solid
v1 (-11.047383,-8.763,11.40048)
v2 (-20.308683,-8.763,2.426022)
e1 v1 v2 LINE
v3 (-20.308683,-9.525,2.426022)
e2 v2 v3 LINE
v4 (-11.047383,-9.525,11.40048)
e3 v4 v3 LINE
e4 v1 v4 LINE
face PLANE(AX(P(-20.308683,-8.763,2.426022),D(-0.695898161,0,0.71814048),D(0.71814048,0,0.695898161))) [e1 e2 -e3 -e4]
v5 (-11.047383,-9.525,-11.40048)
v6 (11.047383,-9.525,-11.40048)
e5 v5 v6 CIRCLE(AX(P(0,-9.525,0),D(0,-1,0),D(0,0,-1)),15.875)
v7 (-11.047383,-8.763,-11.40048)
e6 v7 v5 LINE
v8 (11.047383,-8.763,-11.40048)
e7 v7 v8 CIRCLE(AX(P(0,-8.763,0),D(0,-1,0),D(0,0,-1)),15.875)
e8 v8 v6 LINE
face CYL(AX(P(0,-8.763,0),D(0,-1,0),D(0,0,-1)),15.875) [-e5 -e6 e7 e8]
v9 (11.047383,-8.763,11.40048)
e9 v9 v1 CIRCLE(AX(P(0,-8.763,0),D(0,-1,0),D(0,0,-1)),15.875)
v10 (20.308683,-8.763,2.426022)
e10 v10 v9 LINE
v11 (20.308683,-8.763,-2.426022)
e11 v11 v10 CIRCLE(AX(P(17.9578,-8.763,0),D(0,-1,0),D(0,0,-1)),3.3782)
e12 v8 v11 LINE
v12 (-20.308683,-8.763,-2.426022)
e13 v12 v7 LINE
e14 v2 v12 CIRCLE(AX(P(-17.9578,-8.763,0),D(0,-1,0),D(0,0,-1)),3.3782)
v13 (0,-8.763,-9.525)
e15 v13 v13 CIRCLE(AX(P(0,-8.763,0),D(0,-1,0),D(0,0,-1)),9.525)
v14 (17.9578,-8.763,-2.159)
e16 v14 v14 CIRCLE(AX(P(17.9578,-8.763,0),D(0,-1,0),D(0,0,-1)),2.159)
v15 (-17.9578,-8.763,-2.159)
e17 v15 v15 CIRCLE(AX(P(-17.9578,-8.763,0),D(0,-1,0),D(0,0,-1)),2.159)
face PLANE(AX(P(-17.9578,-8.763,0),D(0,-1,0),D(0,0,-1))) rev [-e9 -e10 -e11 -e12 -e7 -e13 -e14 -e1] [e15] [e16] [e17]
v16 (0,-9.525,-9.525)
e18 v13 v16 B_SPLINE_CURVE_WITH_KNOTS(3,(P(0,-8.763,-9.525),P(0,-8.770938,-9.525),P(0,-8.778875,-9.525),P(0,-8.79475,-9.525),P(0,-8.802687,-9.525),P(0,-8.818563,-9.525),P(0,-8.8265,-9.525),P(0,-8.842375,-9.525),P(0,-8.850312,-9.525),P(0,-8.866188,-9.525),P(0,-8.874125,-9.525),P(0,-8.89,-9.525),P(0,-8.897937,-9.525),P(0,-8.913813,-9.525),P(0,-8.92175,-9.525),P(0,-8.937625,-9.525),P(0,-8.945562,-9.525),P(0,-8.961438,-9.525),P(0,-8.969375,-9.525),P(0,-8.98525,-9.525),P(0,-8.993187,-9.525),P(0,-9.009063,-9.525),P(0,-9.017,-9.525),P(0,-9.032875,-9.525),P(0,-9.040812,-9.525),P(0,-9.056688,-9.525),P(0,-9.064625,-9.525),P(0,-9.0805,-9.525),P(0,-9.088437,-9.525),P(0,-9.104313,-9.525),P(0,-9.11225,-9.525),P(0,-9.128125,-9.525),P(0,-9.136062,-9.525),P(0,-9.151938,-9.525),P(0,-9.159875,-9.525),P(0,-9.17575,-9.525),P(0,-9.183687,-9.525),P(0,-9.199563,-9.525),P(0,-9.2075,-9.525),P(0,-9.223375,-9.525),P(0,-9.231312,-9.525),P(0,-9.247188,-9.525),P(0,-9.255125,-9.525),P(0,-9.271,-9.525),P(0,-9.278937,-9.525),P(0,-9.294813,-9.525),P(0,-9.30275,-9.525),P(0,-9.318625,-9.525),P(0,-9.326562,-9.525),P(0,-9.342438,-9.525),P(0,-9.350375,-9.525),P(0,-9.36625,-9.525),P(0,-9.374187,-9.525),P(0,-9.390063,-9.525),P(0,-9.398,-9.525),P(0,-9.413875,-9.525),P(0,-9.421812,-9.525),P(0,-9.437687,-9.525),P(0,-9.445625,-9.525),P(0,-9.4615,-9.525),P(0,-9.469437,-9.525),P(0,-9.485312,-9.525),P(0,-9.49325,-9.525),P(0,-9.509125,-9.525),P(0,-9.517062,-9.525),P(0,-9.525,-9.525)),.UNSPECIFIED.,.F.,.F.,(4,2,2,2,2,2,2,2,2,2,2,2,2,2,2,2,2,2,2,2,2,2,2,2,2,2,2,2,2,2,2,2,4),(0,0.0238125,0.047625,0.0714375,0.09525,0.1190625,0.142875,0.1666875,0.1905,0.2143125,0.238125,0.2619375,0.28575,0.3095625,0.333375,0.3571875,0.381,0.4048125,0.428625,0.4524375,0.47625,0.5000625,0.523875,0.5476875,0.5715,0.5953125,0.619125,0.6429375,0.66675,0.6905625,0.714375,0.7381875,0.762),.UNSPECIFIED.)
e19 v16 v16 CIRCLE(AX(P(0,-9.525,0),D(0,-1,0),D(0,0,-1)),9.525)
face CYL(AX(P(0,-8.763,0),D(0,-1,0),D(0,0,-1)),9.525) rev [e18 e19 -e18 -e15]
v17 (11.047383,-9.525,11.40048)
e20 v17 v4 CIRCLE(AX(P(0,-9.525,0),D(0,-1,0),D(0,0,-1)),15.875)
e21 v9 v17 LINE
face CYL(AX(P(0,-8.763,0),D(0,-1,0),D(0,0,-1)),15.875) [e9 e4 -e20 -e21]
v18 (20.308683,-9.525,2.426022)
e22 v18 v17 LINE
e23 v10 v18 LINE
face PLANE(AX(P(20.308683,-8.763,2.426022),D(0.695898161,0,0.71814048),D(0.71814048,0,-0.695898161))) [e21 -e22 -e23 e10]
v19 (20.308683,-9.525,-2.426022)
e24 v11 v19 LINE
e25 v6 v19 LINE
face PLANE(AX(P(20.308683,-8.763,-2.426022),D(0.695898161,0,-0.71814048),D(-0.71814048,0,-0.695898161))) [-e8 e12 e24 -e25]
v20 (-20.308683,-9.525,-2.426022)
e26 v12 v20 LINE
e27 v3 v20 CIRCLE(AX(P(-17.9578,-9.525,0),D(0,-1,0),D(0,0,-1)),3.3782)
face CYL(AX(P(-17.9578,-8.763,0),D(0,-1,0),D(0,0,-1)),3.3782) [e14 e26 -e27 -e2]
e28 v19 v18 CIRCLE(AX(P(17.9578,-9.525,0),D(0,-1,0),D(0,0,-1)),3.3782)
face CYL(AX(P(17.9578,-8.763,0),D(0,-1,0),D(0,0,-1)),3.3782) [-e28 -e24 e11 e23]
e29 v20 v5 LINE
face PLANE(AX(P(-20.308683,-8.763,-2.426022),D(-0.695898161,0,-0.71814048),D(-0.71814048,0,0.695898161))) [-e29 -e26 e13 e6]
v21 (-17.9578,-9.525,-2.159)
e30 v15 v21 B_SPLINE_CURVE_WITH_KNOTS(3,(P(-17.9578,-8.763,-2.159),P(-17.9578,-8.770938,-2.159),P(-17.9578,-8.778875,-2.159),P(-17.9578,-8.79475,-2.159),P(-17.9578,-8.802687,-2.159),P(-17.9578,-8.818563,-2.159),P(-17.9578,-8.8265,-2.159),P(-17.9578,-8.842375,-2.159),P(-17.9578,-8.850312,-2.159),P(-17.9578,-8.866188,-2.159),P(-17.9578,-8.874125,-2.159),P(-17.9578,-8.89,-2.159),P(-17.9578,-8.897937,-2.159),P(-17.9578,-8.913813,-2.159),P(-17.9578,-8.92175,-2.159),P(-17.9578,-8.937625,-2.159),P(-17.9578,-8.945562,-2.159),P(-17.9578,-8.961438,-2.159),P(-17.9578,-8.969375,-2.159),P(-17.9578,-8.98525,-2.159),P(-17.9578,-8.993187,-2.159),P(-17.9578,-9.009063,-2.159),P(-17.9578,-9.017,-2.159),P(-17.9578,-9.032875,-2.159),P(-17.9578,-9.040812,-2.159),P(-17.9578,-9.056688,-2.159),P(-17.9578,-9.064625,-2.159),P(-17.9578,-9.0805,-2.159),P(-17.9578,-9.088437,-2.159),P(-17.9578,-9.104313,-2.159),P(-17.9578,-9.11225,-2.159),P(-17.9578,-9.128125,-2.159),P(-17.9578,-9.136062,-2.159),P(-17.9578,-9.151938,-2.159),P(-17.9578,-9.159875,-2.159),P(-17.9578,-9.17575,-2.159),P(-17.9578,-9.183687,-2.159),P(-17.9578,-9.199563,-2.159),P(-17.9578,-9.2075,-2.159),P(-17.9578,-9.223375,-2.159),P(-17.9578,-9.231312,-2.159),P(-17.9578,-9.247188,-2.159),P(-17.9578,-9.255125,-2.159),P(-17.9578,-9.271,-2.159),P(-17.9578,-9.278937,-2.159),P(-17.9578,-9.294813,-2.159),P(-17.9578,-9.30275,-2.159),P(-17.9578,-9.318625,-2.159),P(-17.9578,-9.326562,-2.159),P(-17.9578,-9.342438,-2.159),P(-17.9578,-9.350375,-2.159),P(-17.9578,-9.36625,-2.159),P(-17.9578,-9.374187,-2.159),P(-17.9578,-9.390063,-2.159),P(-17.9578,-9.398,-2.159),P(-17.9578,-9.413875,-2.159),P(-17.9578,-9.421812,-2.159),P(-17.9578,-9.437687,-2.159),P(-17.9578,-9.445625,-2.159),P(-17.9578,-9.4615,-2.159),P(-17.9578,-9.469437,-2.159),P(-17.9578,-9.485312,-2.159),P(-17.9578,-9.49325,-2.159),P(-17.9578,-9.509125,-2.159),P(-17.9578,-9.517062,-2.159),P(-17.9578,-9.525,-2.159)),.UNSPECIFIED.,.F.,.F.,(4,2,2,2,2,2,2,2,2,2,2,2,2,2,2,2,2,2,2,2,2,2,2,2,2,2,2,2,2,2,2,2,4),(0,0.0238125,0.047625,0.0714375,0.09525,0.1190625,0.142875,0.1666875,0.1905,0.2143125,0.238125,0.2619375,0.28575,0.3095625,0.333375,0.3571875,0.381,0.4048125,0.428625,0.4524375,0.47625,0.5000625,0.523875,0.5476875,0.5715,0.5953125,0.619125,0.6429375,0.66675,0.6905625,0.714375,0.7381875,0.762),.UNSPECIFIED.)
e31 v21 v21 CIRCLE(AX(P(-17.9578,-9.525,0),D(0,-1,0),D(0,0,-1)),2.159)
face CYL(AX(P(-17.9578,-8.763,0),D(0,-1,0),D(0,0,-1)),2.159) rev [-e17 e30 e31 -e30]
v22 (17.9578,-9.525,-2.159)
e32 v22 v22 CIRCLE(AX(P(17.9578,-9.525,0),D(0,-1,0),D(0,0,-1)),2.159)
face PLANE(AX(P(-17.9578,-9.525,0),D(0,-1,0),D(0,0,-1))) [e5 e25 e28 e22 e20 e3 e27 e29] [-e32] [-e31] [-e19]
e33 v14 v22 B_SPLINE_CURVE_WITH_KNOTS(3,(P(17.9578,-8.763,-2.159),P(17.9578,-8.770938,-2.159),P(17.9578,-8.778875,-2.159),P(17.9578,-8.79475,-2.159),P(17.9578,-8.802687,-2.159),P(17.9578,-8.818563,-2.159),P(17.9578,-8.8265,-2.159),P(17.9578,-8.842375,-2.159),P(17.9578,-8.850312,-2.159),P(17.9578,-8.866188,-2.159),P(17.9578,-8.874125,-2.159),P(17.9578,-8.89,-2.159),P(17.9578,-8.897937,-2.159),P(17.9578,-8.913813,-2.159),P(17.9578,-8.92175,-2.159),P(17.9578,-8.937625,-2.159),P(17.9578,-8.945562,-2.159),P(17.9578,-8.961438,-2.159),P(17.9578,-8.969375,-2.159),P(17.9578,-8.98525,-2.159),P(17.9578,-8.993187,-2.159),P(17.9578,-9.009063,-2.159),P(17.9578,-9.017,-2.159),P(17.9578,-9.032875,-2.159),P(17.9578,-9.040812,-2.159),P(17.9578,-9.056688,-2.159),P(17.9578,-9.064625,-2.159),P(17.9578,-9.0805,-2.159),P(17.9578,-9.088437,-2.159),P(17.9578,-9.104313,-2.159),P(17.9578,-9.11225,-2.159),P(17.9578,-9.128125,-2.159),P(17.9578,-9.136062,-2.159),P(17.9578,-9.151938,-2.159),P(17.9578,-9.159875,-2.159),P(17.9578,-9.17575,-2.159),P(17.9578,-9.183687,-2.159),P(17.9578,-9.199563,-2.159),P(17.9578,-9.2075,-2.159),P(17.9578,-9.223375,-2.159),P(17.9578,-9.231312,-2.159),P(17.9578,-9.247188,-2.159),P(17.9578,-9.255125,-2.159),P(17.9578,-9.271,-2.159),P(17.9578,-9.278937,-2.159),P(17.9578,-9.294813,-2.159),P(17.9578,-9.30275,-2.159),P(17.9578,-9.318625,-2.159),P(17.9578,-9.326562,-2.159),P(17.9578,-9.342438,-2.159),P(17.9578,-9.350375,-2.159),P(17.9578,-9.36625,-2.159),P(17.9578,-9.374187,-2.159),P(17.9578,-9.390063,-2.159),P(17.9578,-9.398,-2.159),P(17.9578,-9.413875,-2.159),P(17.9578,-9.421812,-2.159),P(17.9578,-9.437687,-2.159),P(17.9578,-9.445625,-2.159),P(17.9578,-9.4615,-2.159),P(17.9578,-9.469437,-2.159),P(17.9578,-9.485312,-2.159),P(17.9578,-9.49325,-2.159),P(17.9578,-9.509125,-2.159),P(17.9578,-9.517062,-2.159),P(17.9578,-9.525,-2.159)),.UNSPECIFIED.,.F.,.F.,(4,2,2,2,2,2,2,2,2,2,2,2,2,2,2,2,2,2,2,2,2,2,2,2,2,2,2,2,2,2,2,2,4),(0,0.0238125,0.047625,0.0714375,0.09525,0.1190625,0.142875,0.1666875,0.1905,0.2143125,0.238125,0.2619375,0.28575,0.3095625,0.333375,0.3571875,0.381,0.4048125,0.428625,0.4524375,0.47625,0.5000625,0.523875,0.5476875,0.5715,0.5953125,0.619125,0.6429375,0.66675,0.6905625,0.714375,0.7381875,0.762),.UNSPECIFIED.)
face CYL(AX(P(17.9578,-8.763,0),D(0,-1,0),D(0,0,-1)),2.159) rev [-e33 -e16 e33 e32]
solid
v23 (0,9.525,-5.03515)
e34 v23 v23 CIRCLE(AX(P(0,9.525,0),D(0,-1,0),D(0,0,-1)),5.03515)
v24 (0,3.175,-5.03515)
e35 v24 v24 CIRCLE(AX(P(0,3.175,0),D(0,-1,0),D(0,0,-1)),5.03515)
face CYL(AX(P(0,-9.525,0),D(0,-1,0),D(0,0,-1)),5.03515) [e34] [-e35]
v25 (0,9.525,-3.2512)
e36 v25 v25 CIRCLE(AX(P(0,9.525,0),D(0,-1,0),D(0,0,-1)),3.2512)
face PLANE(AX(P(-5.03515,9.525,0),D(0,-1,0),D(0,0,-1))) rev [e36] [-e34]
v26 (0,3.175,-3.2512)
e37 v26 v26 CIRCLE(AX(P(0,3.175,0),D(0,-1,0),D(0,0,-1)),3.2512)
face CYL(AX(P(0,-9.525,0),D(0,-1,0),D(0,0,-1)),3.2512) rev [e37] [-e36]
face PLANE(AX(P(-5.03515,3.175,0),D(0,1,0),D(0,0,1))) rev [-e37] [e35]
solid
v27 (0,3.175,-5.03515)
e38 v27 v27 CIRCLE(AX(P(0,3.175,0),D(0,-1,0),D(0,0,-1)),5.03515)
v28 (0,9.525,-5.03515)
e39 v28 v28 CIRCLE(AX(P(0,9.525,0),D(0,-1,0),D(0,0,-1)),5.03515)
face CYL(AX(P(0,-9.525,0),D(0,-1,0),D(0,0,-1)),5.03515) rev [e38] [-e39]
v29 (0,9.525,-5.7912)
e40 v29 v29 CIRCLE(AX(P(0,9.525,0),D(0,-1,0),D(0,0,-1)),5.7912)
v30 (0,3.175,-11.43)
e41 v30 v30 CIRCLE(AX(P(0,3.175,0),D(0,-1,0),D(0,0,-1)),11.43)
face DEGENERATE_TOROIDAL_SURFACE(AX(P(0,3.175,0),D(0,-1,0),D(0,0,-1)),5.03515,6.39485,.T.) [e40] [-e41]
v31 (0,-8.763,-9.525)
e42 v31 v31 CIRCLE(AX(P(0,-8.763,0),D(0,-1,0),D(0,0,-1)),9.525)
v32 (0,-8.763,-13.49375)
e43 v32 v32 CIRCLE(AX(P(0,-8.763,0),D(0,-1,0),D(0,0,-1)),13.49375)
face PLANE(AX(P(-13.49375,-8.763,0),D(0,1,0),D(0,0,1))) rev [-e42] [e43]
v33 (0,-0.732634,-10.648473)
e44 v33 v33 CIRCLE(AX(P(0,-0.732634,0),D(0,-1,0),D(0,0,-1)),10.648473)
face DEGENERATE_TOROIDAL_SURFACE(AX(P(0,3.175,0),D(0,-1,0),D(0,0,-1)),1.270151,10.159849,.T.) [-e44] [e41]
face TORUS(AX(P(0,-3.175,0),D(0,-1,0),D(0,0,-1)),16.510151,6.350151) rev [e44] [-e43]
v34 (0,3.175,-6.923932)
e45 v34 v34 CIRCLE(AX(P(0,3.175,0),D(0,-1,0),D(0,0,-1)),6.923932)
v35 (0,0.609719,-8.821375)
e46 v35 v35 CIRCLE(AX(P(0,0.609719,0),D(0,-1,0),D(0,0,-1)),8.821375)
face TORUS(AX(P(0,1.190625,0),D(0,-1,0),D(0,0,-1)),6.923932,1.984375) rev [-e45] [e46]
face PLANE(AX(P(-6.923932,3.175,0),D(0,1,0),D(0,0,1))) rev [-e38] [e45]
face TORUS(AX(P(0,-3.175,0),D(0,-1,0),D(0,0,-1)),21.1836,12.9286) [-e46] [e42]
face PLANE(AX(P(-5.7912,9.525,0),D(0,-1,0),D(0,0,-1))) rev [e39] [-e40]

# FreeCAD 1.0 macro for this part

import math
import FreeCAD as App
import Part
import Sketcher

V = App.Vector
Q = App.Units.Quantity

doc = App.newDocument("Part")
body = doc.addObject("PartDesign::Body", "Body")

# Sketch on XY plane
sketch1 = body.newObject("Sketcher::SketchObject", "Sketch")
sketch1.AttachmentSupport = (doc.getObject("XY_Plane"), [""])
sketch1.MapMode = "FlatFace"
sketch1.addGeometry([
    Part.LineSegment(V(-13.5, -8.8, 0), V(-9.5, -8.8, 0)),  # 0
    Part.ArcOfCircle(Part.Circle(V(-21.2, -3.2, 0), V(0, 0, 1), 12.9), math.radians(-26), math.radians(17)),  # 1
    Part.ArcOfCircle(Part.Circle(V(-6.9, 1.2, 0), V(0, 0, 1), 2), math.radians(90), math.radians(197)),  # 2
    Part.LineSegment(V(-6.9, 3.2, 0), V(-5, 3.2, 0)),  # 3
    Part.LineSegment(V(-5, 3.2, 0), V(-5, 9.5, 0)),  # 4
    Part.LineSegment(V(-5, 9.5, 0), V(-5.8, 9.5, 0)),  # 5
    Part.ArcOfCircle(Part.Circle(V(-5, 3.2, 0), V(0, 0, 1), 6.4), math.radians(97), math.radians(180)),  # 6
    Part.ArcOfCircle(Part.Circle(V(-1.3, 3.2, 0), V(0, 0, 1), 10.2), math.radians(180), math.radians(203)),  # 7
    Part.ArcOfCircle(Part.Circle(V(-16.5, -3.2, 0), V(0, 0, 1), 6.4), math.radians(-62), math.radians(23)),  # 8
], False)
sketch1.addConstraint([
    Sketcher.Constraint("Coincident", 0, 2, 1, 1),
    Sketcher.Constraint("Tangent", 1, 2, 2, 2),
    Sketcher.Constraint("Tangent", 2, 1, 3, 1),
    Sketcher.Constraint("Coincident", 3, 2, 4, 1),
    Sketcher.Constraint("Coincident", 4, 2, 5, 1),
    Sketcher.Constraint("Coincident", 5, 2, 6, 1),
    Sketcher.Constraint("Tangent", 6, 2, 7, 1),
    Sketcher.Constraint("Tangent", 7, 2, 8, 2),
    Sketcher.Constraint("Coincident", 8, 1, 0, 1),
    Sketcher.Constraint("Horizontal", 0),
    Sketcher.Constraint("Horizontal", 3),
    Sketcher.Constraint("Vertical", 4),
    Sketcher.Constraint("Horizontal", 5),
    Sketcher.Constraint("Coincident", 3, 2, 6, 3),
    Sketcher.Constraint("Horizontal", 6, 3, 7, 3),
    Sketcher.Constraint("Horizontal", 1, 3, 8, 3),
    Sketcher.Constraint("Radius", 1, Q("0.509 in")),
    Sketcher.Constraint("Radius", 2, Q("0.078125 in")),
    Sketcher.Constraint("DistanceY", 4, 1, 4, 2, Q("0.25 in")),
    Sketcher.Constraint("DistanceX", 8, 3, 7, 3, Q("0.6 in")),
    Sketcher.Constraint("DistanceX", 0, 1, 0, 2, Q("0.15625 in")),
    Sketcher.Constraint("DistanceX", 6, 2, -1, 1, Q("0.45 in")),
    Sketcher.Constraint("DistanceY", 1, 3, 6, 3, Q("0.25 in")),
    Sketcher.Constraint("DistanceY", 0, 2, 8, 3, Q("0.22 in")),
    Sketcher.Constraint("DistanceX", 1, 3, -1, 1, Q("0.834 in")),
    Sketcher.Constraint("DistanceY", 1, 3, -1, 1, Q("0.125 in")),
    Sketcher.Constraint("DistanceX", 5, 2, -1, 1, Q("0.228 in")),
])
revolution = body.newObject("PartDesign::Revolution", "Revolution")
revolution.Profile = sketch1
revolution.ReferenceAxis = (sketch1, ["V_Axis"])
revolution.Angle = 360
body2 = doc.addObject("PartDesign::Body", "Body001")

# Sketch on XY plane
sketch2 = body2.newObject("Sketcher::SketchObject", "Sketch001")
sketch2.AttachmentSupport = (doc.getObject("XY_Plane001"), [""])
sketch2.MapMode = "FlatFace"
sketch2.addGeometry([
    Part.LineSegment(V(-5, 9.5, 0), V(-5, 3.2, 0)),
    Part.LineSegment(V(-5, 3.2, 0), V(-3.3, 3.2, 0)),
    Part.LineSegment(V(-3.3, 3.2, 0), V(-3.3, 9.5, 0)),
    Part.LineSegment(V(-3.3, 9.5, 0), V(-5, 9.5, 0)),
], False)
sketch2.addConstraint([
    Sketcher.Constraint("Coincident", 0, 2, 1, 1),
    Sketcher.Constraint("Coincident", 1, 2, 2, 1),
    Sketcher.Constraint("Coincident", 2, 2, 3, 1),
    Sketcher.Constraint("Coincident", 3, 2, 0, 1),
    Sketcher.Constraint("Vertical", 0),
    Sketcher.Constraint("Horizontal", 1),
    Sketcher.Constraint("Vertical", 2),
    Sketcher.Constraint("Horizontal", 3),
    Sketcher.Constraint("DistanceY", 0, 2, 0, 1, Q("0.25 in")),
    Sketcher.Constraint("DistanceY", -1, 1, 0, 2, Q("0.125 in")),
    Sketcher.Constraint("DistanceX", 1, 2, -1, 1, Q("0.128 in")),
    Sketcher.Constraint("DistanceX", 1, 1, 1, 2, Q("1.78395 mm")),
])
revolution2 = body2.newObject("PartDesign::Revolution", "Revolution001")
revolution2.Profile = sketch2
revolution2.ReferenceAxis = (sketch2, ["V_Axis"])
revolution2.Angle = 360
body3 = doc.addObject("PartDesign::Body", "Body002")

# Sketch on XZ plane
sketch3 = body3.newObject("Sketcher::SketchObject", "Sketch002")
sketch3.AttachmentSupport = (doc.getObject("XZ_Plane002"), [""])
sketch3.MapMode = "FlatFace"
sketch3.AttachmentOffset = App.Placement(V(0, 0, 0.375 * 25.4), App.Rotation())
sketch3.addGeometry([
    Part.LineSegment(V(-20.3, -2.4, 0), V(-11, -11.4, 0)),  # 0
    Part.ArcOfCircle(Part.Circle(V(0, 0, 0), V(0, 0, 1), 15.9), math.radians(-134), math.radians(-46)),  # 1
    Part.LineSegment(V(11, -11.4, 0), V(20.3, -2.4, 0)),  # 2
    Part.ArcOfCircle(Part.Circle(V(18, 0, 0), V(0, 0, 1), 3.4), math.radians(-46), math.radians(46)),  # 3
    Part.LineSegment(V(20.3, 2.4, 0), V(11, 11.4, 0)),  # 4
    Part.ArcOfCircle(Part.Circle(V(0, 0, 0), V(0, 0, 1), 15.9), math.radians(46), math.radians(134)),  # 5
    Part.LineSegment(V(-11, 11.4, 0), V(-20.3, 2.4, 0)),  # 6
    Part.ArcOfCircle(Part.Circle(V(-18, 0, 0), V(0, 0, 1), 3.4), math.radians(134), math.radians(226)),  # 7
    Part.Circle(V(-18, 0, 0), V(0, 0, 1), 2.2),  # 8
    Part.Circle(V(18, 0, 0), V(0, 0, 1), 2.2),  # 9
    Part.Circle(V(0, 0, 0), V(0, 0, 1), 9.5),  # 10
], False)
sketch3.addConstraint([
    Sketcher.Constraint("Tangent", 0, 2, 1, 1),
    Sketcher.Constraint("Tangent", 1, 2, 2, 1),
    Sketcher.Constraint("Tangent", 2, 2, 3, 1),
    Sketcher.Constraint("Tangent", 3, 2, 4, 1),
    Sketcher.Constraint("Tangent", 4, 2, 5, 1),
    Sketcher.Constraint("Tangent", 5, 2, 6, 1),
    Sketcher.Constraint("Tangent", 6, 2, 7, 1),
    Sketcher.Constraint("Tangent", 7, 2, 0, 1),
    Sketcher.Constraint("Coincident", 1, 3, -1, 1),
    Sketcher.Constraint("Coincident", 5, 3, -1, 1),
    Sketcher.Constraint("Coincident", 10, 3, -1, 1),
    Sketcher.Constraint("Coincident", 8, 3, 7, 3),
    Sketcher.Constraint("Coincident", 9, 3, 3, 3),
    Sketcher.Constraint("Equal", 1, 5),
    Sketcher.Constraint("Equal", 3, 7),
    Sketcher.Constraint("Equal", 8, 9),
    Sketcher.Constraint("Symmetric", 3, 3, 7, 3, -1, 1),
    Sketcher.Constraint("PointOnObject", 3, 3, -1),
    Sketcher.Constraint("Diameter", 8, Q("0.17 in")),
    Sketcher.Constraint("Diameter", 10, Q("0.75 in")),
    Sketcher.Constraint("Radius", 1, Q("0.625 in")),
    Sketcher.Constraint("Radius", 3, Q("0.133 in")),
    Sketcher.Constraint("DistanceX", -1, 1, 3, 3, Q("0.707 in")),
])
pad1 = body3.newObject("PartDesign::Pad", "Pad")
pad1.Profile = sketch3
pad1.Length = Q("0.03 in")
pad1.Reversed = True

doc.recompute()
